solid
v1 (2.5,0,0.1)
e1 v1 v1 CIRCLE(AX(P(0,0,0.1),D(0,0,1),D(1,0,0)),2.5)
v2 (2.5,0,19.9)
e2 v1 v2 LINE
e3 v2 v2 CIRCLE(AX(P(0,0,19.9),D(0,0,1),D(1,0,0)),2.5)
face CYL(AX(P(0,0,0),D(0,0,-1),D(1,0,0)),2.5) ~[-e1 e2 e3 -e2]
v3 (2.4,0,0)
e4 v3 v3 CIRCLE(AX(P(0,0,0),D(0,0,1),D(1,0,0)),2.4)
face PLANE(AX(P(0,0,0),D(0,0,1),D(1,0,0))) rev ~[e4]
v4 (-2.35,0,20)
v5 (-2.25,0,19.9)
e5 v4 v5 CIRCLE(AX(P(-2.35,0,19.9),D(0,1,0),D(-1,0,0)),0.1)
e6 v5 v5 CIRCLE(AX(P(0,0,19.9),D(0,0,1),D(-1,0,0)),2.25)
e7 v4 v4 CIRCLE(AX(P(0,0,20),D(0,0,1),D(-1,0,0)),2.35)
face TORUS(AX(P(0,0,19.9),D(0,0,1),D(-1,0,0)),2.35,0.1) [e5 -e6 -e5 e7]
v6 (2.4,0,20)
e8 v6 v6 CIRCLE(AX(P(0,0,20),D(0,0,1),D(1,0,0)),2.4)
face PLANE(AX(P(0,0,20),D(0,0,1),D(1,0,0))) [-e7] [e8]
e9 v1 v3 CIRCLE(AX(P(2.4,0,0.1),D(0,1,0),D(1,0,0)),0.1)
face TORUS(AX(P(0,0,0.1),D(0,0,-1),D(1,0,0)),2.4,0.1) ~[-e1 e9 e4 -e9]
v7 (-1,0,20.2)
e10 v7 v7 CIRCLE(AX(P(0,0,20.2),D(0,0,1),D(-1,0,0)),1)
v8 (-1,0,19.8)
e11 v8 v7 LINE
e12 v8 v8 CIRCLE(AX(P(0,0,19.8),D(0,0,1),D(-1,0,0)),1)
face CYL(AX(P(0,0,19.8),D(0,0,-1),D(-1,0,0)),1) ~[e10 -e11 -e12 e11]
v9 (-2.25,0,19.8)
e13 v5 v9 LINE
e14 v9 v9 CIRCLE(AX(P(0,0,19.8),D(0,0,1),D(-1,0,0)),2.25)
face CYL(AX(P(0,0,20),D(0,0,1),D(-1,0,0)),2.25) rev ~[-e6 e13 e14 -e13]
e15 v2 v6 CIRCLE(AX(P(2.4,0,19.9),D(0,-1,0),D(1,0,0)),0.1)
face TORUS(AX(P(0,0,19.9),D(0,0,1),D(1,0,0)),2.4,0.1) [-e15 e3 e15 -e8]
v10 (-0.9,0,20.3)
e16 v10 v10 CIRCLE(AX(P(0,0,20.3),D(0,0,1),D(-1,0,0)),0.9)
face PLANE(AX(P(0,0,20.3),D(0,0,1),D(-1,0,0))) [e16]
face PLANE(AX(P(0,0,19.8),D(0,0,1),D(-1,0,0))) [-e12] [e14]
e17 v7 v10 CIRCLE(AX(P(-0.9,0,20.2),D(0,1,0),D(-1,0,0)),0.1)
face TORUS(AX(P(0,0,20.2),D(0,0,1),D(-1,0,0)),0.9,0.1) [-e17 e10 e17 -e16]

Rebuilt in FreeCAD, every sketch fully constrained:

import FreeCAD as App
import Part
import Sketcher

V = App.Vector
Q = App.Units.Quantity


def edges_at(feature, points):
    """Names of the edges that pass closest to the given points."""
    edges = feature.Shape.Edges
    near = lambda p: min(range(len(edges)), key=lambda i: edges[i].distToShape(Part.Vertex(*p))[0])
    return sorted({f"Edge{near(p) + 1}" for p in points})

doc = App.newDocument("Part")
body = doc.addObject("PartDesign::Body", "Body")

sketch1 = body.newObject("Sketcher::SketchObject", "Sketch")
sketch1.AttachmentSupport = (doc.getObject("XY_Plane"), [""])
sketch1.MapMode = "FlatFace"
sketch1.addGeometry(Part.Circle(V(0, 0, 0), V(0, 0, 1), 2.5), False)
sketch1.addConstraint([
    Sketcher.Constraint("Coincident", 0, 3, -1, 1),
    Sketcher.Constraint("Diameter", 0, Q("5 mm")),
])
pad1 = body.newObject("PartDesign::Pad", "Pad")
pad1.Profile = sketch1
pad1.Length = 20
doc.recompute()

fillet = body.newObject("PartDesign::Fillet", "Fillet")
fillet.Base = (pad1, edges_at(pad1, [(-2.331, -0.904, 0)]))
fillet.Radius = 0.1
doc.recompute()

fillet2 = body.newObject("PartDesign::Fillet", "Fillet001")
fillet2.Base = (fillet, edges_at(fillet, [(-2.331, -0.904, 20)]))
fillet2.Radius = 0.1

sketch2 = body.newObject("Sketcher::SketchObject", "Sketch001")
sketch2.AttachmentSupport = (doc.getObject("XY_Plane"), [""])
sketch2.MapMode = "FlatFace"
sketch2.AttachmentOffset = App.Placement(V(0, 0, 20), App.Rotation())
sketch2.addGeometry(Part.Circle(V(0, 0, 0), V(0, 0, 1), 2.2), False)
sketch2.addConstraint([
    Sketcher.Constraint("Coincident", 0, 3, -1, 1),
    Sketcher.Constraint("Diameter", 0, Q("4.5 mm")),
])
pocket1 = body.newObject("PartDesign::Pocket", "Pocket")
pocket1.Profile = sketch2
pocket1.Length = 0.2
doc.recompute()

fillet3 = body.newObject("PartDesign::Fillet", "Fillet002")
fillet3.Base = (pocket1, edges_at(pocket1, [(2.098, -0.814, 20)]))
fillet3.Radius = 0.1

sketch3 = body.newObject("Sketcher::SketchObject", "Sketch002")
sketch3.AttachmentSupport = (doc.getObject("XY_Plane"), [""])
sketch3.MapMode = "FlatFace"
sketch3.AttachmentOffset = App.Placement(V(0, 0, 19.8), App.Rotation())
sketch3.addGeometry(Part.Circle(V(0, 0, 0), V(0, 0, 1), 1), False)
sketch3.addConstraint([
    Sketcher.Constraint("Coincident", 0, 3, -1, 1),
    Sketcher.Constraint("Diameter", 0, Q("2 mm")),
])
pad2 = body.newObject("PartDesign::Pad", "Pad001")
pad2.Profile = sketch3
pad2.Length = 0.5
doc.recompute()

fillet4 = body.newObject("PartDesign::Fillet", "Fillet003")
fillet4.Base = (pad2, edges_at(pad2, [(0.932, 0.362, 20.3)]))
fillet4.Radius = 0.1

doc.recompute()
